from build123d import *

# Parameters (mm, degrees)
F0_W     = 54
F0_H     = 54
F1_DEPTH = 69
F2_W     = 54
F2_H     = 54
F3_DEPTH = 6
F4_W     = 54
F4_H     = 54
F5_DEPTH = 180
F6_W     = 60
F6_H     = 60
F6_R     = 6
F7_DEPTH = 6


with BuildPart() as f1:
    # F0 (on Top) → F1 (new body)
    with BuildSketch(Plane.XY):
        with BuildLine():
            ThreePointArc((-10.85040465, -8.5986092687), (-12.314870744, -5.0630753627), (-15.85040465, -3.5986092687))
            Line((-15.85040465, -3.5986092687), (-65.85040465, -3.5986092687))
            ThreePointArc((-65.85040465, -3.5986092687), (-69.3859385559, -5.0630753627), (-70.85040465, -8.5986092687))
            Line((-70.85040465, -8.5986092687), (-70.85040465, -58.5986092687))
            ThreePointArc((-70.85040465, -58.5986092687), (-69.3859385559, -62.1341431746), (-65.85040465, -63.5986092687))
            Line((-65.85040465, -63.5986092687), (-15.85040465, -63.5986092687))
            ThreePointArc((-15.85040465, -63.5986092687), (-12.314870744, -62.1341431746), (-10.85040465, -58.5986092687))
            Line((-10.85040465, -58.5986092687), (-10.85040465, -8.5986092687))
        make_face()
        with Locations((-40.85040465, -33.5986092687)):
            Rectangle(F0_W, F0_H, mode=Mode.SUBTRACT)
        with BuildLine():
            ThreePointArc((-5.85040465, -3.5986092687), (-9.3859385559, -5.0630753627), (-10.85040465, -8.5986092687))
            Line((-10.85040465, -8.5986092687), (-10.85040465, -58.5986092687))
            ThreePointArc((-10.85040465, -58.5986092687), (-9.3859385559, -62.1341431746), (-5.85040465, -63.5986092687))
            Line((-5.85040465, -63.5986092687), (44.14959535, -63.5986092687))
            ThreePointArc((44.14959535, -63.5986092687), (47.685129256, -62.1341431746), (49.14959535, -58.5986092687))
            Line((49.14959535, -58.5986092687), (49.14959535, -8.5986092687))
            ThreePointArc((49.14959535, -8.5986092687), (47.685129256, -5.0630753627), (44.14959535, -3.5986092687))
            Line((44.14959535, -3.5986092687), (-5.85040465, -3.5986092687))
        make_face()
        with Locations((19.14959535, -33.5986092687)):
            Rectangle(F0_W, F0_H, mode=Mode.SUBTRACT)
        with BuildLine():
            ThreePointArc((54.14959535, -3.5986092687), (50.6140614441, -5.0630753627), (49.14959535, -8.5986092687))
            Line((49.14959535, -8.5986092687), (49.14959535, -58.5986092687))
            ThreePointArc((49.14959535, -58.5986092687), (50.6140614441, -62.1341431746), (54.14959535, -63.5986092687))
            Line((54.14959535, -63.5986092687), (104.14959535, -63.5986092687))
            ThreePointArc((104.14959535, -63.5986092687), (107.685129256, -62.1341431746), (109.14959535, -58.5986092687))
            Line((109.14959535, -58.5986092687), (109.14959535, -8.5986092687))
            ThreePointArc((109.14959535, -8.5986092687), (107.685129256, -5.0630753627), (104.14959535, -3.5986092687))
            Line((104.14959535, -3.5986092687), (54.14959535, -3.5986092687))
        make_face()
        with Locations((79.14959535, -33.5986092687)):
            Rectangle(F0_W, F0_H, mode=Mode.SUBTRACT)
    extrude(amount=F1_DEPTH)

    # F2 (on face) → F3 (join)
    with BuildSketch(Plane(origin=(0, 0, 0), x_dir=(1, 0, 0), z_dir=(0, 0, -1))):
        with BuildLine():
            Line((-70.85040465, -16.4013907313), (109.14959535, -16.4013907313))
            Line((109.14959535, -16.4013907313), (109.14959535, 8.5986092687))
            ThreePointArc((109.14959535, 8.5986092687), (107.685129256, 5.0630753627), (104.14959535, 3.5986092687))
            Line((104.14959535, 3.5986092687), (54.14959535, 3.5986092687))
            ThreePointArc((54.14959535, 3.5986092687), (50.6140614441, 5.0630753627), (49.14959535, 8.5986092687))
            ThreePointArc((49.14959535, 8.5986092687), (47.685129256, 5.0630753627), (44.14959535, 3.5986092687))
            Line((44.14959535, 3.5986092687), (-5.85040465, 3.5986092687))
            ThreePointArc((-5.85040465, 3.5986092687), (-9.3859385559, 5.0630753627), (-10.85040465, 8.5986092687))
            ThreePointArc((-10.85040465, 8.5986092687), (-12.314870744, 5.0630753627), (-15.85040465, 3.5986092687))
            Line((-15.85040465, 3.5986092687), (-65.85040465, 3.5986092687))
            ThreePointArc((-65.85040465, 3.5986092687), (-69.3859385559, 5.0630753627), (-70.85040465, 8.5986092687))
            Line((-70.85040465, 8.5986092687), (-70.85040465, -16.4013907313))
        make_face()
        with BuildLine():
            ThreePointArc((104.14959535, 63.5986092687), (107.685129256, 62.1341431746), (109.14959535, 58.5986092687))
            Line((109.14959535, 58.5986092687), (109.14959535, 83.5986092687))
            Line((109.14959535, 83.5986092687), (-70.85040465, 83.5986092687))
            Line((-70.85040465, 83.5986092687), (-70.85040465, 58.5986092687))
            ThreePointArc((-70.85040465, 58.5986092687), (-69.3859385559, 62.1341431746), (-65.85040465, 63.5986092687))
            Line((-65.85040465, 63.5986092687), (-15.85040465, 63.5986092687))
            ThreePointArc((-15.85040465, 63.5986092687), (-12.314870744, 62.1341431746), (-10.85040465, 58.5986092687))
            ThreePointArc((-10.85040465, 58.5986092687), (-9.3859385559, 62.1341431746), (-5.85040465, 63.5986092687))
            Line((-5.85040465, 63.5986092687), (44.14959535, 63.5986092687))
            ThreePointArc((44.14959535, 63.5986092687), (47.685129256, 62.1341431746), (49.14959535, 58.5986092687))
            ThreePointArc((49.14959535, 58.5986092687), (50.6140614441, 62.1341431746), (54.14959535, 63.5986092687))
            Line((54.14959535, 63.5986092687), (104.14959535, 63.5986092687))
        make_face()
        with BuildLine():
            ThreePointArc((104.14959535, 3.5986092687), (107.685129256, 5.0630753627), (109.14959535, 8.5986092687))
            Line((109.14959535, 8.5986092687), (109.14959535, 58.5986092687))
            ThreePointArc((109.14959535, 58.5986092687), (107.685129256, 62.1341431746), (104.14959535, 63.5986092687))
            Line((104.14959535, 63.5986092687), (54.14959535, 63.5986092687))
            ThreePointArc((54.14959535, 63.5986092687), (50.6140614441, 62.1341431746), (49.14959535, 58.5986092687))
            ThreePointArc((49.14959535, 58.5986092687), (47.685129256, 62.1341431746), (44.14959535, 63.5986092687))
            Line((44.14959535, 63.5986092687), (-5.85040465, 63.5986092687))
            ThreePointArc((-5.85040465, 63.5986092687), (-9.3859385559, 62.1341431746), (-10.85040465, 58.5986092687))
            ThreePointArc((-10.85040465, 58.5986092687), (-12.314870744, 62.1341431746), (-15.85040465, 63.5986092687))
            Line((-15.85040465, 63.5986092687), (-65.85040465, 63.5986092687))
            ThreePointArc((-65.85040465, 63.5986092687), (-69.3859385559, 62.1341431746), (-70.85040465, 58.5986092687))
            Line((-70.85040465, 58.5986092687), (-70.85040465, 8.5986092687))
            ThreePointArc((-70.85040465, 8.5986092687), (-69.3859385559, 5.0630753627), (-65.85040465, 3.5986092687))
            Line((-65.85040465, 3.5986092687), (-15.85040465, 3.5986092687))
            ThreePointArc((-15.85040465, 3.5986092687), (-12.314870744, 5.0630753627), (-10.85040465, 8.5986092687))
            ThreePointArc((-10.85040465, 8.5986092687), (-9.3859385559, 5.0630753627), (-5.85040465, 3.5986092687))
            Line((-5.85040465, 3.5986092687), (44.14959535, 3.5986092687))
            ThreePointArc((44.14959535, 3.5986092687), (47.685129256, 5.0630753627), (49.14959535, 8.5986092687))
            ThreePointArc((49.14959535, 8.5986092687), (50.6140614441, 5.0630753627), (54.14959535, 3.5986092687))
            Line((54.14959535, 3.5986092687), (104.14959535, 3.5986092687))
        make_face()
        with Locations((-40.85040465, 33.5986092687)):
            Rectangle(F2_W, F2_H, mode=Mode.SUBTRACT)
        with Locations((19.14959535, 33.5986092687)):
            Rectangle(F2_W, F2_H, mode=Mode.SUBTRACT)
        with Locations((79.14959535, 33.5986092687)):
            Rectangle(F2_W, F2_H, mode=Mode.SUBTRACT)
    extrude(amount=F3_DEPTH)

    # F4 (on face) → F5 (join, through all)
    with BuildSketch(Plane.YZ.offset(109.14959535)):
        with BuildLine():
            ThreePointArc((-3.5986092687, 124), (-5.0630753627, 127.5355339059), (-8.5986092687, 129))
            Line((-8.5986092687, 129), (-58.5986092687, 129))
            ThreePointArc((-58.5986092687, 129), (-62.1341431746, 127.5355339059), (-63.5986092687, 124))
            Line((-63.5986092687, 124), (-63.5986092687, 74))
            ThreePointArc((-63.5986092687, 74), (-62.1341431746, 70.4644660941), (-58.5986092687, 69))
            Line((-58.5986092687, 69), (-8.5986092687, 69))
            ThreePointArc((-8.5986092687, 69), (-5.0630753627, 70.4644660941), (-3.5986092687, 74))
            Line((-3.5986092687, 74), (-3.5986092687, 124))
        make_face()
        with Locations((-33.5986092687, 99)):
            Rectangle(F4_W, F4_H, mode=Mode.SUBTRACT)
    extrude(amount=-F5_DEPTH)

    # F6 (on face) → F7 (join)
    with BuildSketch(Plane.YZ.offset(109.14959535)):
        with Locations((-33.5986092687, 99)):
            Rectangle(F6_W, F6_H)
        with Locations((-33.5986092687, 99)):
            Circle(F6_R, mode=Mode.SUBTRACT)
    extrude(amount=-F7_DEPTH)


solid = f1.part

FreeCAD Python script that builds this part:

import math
import FreeCAD as App
import Part
import Sketcher
from FreeCAD import Vector


def add_polygon(sketch, points):
    """Adds a closed chain of lines whose ends are joined by coincident constraints."""
    first, n = sketch.GeometryCount, len(points)
    for a, b in zip(points, points[1:] + points[:1]):
        sketch.addGeometry(Part.LineSegment(App.Vector(*a, 0), App.Vector(*b, 0)), False)
    for i in range(n):
        sketch.addConstraint(Sketcher.Constraint("Coincident", first + i, 2, first + (i + 1) % n, 1))

doc = App.newDocument("Part")
body = doc.addObject("PartDesign::Body", "Body")

# Sketch on XY plane
sketch1 = doc.addObject("Sketcher::SketchObject", "Sketch")
body.addObject(sketch1)
sketch1.AttachmentSupport = (doc.XY_Plane, [""])
sketch1.MapMode = "FlatFace"
sketch1.addGeometry(Part.ArcOfCircle(Part.Circle(Vector(-16, -9, 0), Vector(0, 0, 1), 5), math.radians(0), math.radians(90)), False)  # 0
sketch1.addGeometry(Part.LineSegment(Vector(-16, -4, 0), Vector(-66, -4, 0)), False)  # 1
sketch1.addGeometry(Part.ArcOfCircle(Part.Circle(Vector(-66, -9, 0), Vector(0, 0, 1), 5), math.radians(90), math.radians(180)), False)  # 2
sketch1.addGeometry(Part.LineSegment(Vector(-71, -9, 0), Vector(-71, -59, 0)), False)  # 3
sketch1.addGeometry(Part.ArcOfCircle(Part.Circle(Vector(-66, -59, 0), Vector(0, 0, 1), 5), math.radians(180), math.radians(270)), False)  # 4
sketch1.addGeometry(Part.LineSegment(Vector(-66, -64, 0), Vector(-16, -64, 0)), False)  # 5
sketch1.addGeometry(Part.ArcOfCircle(Part.Circle(Vector(-16, -59, 0), Vector(0, 0, 1), 5), math.radians(-90), math.radians(0)), False)  # 6
sketch1.addGeometry(Part.ArcOfCircle(Part.Circle(Vector(-6, -59, 0), Vector(0, 0, 1), 5), math.radians(180), math.radians(270)), False)  # 7
sketch1.addGeometry(Part.LineSegment(Vector(-6, -64, 0), Vector(44, -64, 0)), False)  # 8
sketch1.addGeometry(Part.ArcOfCircle(Part.Circle(Vector(44, -59, 0), Vector(0, 0, 1), 5), math.radians(-90), math.radians(0)), False)  # 9
sketch1.addGeometry(Part.ArcOfCircle(Part.Circle(Vector(54, -59, 0), Vector(0, 0, 1), 5), math.radians(180), math.radians(270)), False)  # 10
sketch1.addGeometry(Part.LineSegment(Vector(54, -64, 0), Vector(104, -64, 0)), False)  # 11
sketch1.addGeometry(Part.ArcOfCircle(Part.Circle(Vector(104, -59, 0), Vector(0, 0, 1), 5), math.radians(-90), math.radians(0)), False)  # 12
sketch1.addGeometry(Part.LineSegment(Vector(109, -59, 0), Vector(109, -9, 0)), False)  # 13
sketch1.addGeometry(Part.ArcOfCircle(Part.Circle(Vector(104, -9, 0), Vector(0, 0, 1), 5), math.radians(0), math.radians(90)), False)  # 14
sketch1.addGeometry(Part.LineSegment(Vector(104, -4, 0), Vector(54, -4, 0)), False)  # 15
sketch1.addGeometry(Part.ArcOfCircle(Part.Circle(Vector(54, -9, 0), Vector(0, 0, 1), 5), math.radians(90), math.radians(180)), False)  # 16
sketch1.addGeometry(Part.ArcOfCircle(Part.Circle(Vector(44, -9, 0), Vector(0, 0, 1), 5), math.radians(0), math.radians(90)), False)  # 17
sketch1.addGeometry(Part.LineSegment(Vector(44, -4, 0), Vector(-6, -4, 0)), False)  # 18
sketch1.addGeometry(Part.ArcOfCircle(Part.Circle(Vector(-6, -9, 0), Vector(0, 0, 1), 5), math.radians(90), math.radians(180)), False)  # 19
add_polygon(sketch1, [(-14, -61), (-68, -61), (-68, -7), (-14, -7)])  # lines 20-23
add_polygon(sketch1, [(46, -61), (-8, -61), (-8, -7), (46, -7)])  # lines 24-27
add_polygon(sketch1, [(106, -61), (52, -61), (52, -7), (106, -7)])  # lines 28-31
sketch1.addConstraint(Sketcher.Constraint("Tangent", 0, 2, 1, 1))
sketch1.addConstraint(Sketcher.Constraint("Tangent", 1, 2, 2, 1))
sketch1.addConstraint(Sketcher.Constraint("Tangent", 2, 2, 3, 1))
sketch1.addConstraint(Sketcher.Constraint("Tangent", 3, 2, 4, 1))
sketch1.addConstraint(Sketcher.Constraint("Tangent", 4, 2, 5, 1))
sketch1.addConstraint(Sketcher.Constraint("Tangent", 5, 2, 6, 1))
sketch1.addConstraint(Sketcher.Constraint("Tangent", 6, 2, 7, 1))
sketch1.addConstraint(Sketcher.Constraint("Tangent", 7, 2, 8, 1))
sketch1.addConstraint(Sketcher.Constraint("Tangent", 8, 2, 9, 1))
sketch1.addConstraint(Sketcher.Constraint("Tangent", 9, 2, 10, 1))
sketch1.addConstraint(Sketcher.Constraint("Tangent", 10, 2, 11, 1))
sketch1.addConstraint(Sketcher.Constraint("Tangent", 11, 2, 12, 1))
sketch1.addConstraint(Sketcher.Constraint("Tangent", 12, 2, 13, 1))
sketch1.addConstraint(Sketcher.Constraint("Tangent", 13, 2, 14, 1))
sketch1.addConstraint(Sketcher.Constraint("Tangent", 14, 2, 15, 1))
sketch1.addConstraint(Sketcher.Constraint("Tangent", 15, 2, 16, 1))
sketch1.addConstraint(Sketcher.Constraint("Tangent", 16, 2, 17, 1))
sketch1.addConstraint(Sketcher.Constraint("Tangent", 17, 2, 18, 1))
sketch1.addConstraint(Sketcher.Constraint("Tangent", 18, 2, 19, 1))
sketch1.addConstraint(Sketcher.Constraint("Tangent", 19, 2, 0, 1))
sketch1.addConstraint(Sketcher.Constraint("Horizontal", 1))
sketch1.addConstraint(Sketcher.Constraint("Vertical", 3))
sketch1.addConstraint(Sketcher.Constraint("Horizontal", 5))
sketch1.addConstraint(Sketcher.Constraint("Horizontal", 8))
sketch1.addConstraint(Sketcher.Constraint("Horizontal", 11))
sketch1.addConstraint(Sketcher.Constraint("Vertical", 13))
sketch1.addConstraint(Sketcher.Constraint("Horizontal", 15))
sketch1.addConstraint(Sketcher.Constraint("Horizontal", 18))
sketch1.addConstraint(Sketcher.Constraint("Horizontal", 20))
sketch1.addConstraint(Sketcher.Constraint("Vertical", 21))
sketch1.addConstraint(Sketcher.Constraint("Horizontal", 22))
sketch1.addConstraint(Sketcher.Constraint("Vertical", 23))
sketch1.addConstraint(Sketcher.Constraint("Horizontal", 24))
sketch1.addConstraint(Sketcher.Constraint("Vertical", 25))
sketch1.addConstraint(Sketcher.Constraint("Horizontal", 26))
sketch1.addConstraint(Sketcher.Constraint("Vertical", 27))
sketch1.addConstraint(Sketcher.Constraint("Horizontal", 28))
sketch1.addConstraint(Sketcher.Constraint("Vertical", 29))
sketch1.addConstraint(Sketcher.Constraint("Horizontal", 30))
sketch1.addConstraint(Sketcher.Constraint("Vertical", 31))
sketch1.addConstraint(Sketcher.Constraint("Equal", 0, 2))
sketch1.addConstraint(Sketcher.Constraint("Equal", 2, 4))
sketch1.addConstraint(Sketcher.Constraint("Equal", 4, 6))
sketch1.addConstraint(Sketcher.Constraint("Equal", 6, 7))
sketch1.addConstraint(Sketcher.Constraint("Equal", 7, 9))
sketch1.addConstraint(Sketcher.Constraint("Equal", 9, 10))
sketch1.addConstraint(Sketcher.Constraint("Equal", 10, 12))
sketch1.addConstraint(Sketcher.Constraint("Equal", 12, 14))
sketch1.addConstraint(Sketcher.Constraint("Equal", 14, 16))
sketch1.addConstraint(Sketcher.Constraint("Equal", 16, 17))
sketch1.addConstraint(Sketcher.Constraint("Equal", 17, 19))
sketch1.addConstraint(Sketcher.Constraint("Horizontal", 6, 3, 7, 3))
sketch1.addConstraint(Sketcher.Constraint("Horizontal", 9, 3, 10, 3))
sketch1.addConstraint(Sketcher.Constraint("Horizontal", 2, 3, 14, 3))
sketch1.addConstraint(Sketcher.Constraint("Horizontal", 16, 3, 17, 3))
sketch1.addConstraint(Sketcher.Constraint("Horizontal", 23, 2, 24, 2))
sketch1.addConstraint(Sketcher.Constraint("Horizontal", 22, 2, 25, 2))
sketch1.addConstraint(Sketcher.Constraint("Horizontal", 27, 2, 28, 2))
sketch1.addConstraint(Sketcher.Constraint("Horizontal", 26, 2, 29, 2))
sketch1.addConstraint(Sketcher.Constraint("Vertical", 0, 3, 6, 3))
sketch1.addConstraint(Sketcher.Constraint("Vertical", 10, 3, 16, 3))
sketch1.addConstraint(Sketcher.Constraint("Equal", 5, 8))
sketch1.addConstraint(Sketcher.Constraint("Equal", 8, 11))
sketch1.addConstraint(Sketcher.Constraint("Equal", 22, 24))
sketch1.addConstraint(Sketcher.Constraint("Equal", 26, 28))
sketch1.addConstraint(Sketcher.Constraint("Equal", 18, 3))
sketch1.addConstraint(Sketcher.Constraint("Equal", 30, 21))
sketch1.addConstraint(Sketcher.Constraint("Radius", 0, 5.0))
sketch1.addConstraint(Sketcher.Constraint("DistanceX", 1, 2, 1, 1, 50.0))
sketch1.addConstraint(Sketcher.Constraint("DistanceX", 20, 2, 20, 1, 54.0))
sketch1.addConstraint(Sketcher.Constraint("DistanceX", 20, 2, 4, 3, 2.0))
sketch1.addConstraint(Sketcher.Constraint("DistanceY", 20, 2, 4, 3, 2.0))
sketch1.addConstraint(Sketcher.Constraint("DistanceX", 24, 2, 7, 3, 2.0))
sketch1.addConstraint(Sketcher.Constraint("DistanceX", 28, 2, 10, 3, 2.0))
sketch1.addConstraint(Sketcher.Constraint("DistanceY", 0, 3, -1, 1, 8.598609))
sketch1.addConstraint(Sketcher.Constraint("DistanceX", 0, 3, -1, 1, 15.850405))
pad1 = doc.addObject("PartDesign::Pad", "Pad")
body.addObject(pad1)
pad1.Profile = sketch1
pad1.Length = 69

# Sketch on XY plane
sketch2 = doc.addObject("Sketcher::SketchObject", "Sketch001")
body.addObject(sketch2)
sketch2.AttachmentSupport = (doc.XY_Plane, [""])
sketch2.MapMode = "FlatFace"
add_polygon(sketch2, [(-71, 16), (109, 16), (109, -84), (-71, -84)])  # lines 0-3
add_polygon(sketch2, [(-14, -7), (-68, -7), (-68, -61), (-14, -61)])  # lines 4-7
add_polygon(sketch2, [(46, -7), (-8, -7), (-8, -61), (46, -61)])  # lines 8-11
add_polygon(sketch2, [(106, -7), (52, -7), (52, -61), (106, -61)])  # lines 12-15
sketch2.addConstraint(Sketcher.Constraint("Horizontal", 0))
sketch2.addConstraint(Sketcher.Constraint("Vertical", 1))
sketch2.addConstraint(Sketcher.Constraint("Horizontal", 2))
sketch2.addConstraint(Sketcher.Constraint("Vertical", 3))
sketch2.addConstraint(Sketcher.Constraint("Horizontal", 4))
sketch2.addConstraint(Sketcher.Constraint("Vertical", 5))
sketch2.addConstraint(Sketcher.Constraint("Horizontal", 6))
sketch2.addConstraint(Sketcher.Constraint("Vertical", 7))
sketch2.addConstraint(Sketcher.Constraint("Horizontal", 8))
sketch2.addConstraint(Sketcher.Constraint("Vertical", 9))
sketch2.addConstraint(Sketcher.Constraint("Horizontal", 10))
sketch2.addConstraint(Sketcher.Constraint("Vertical", 11))
sketch2.addConstraint(Sketcher.Constraint("Horizontal", 12))
sketch2.addConstraint(Sketcher.Constraint("Vertical", 13))
sketch2.addConstraint(Sketcher.Constraint("Horizontal", 14))
sketch2.addConstraint(Sketcher.Constraint("Vertical", 15))
sketch2.addConstraint(Sketcher.Constraint("Horizontal", 7, 2, 8, 2))
sketch2.addConstraint(Sketcher.Constraint("Horizontal", 6, 2, 9, 2))
sketch2.addConstraint(Sketcher.Constraint("Horizontal", 11, 2, 12, 2))
sketch2.addConstraint(Sketcher.Constraint("Horizontal", 10, 2, 13, 2))
sketch2.addConstraint(Sketcher.Constraint("Equal", 6, 8))
sketch2.addConstraint(Sketcher.Constraint("Equal", 10, 12))
sketch2.addConstraint(Sketcher.Constraint("Equal", 14, 5))
sketch2.addConstraint(Sketcher.Constraint("DistanceX", 0, 1, 0, 2, 180.0))
sketch2.addConstraint(Sketcher.Constraint("DistanceX", 4, 2, 4, 1, 54.0))
sketch2.addConstraint(Sketcher.Constraint("DistanceY", 1, 2, 1, 1, 100.0))
sketch2.addConstraint(Sketcher.Constraint("DistanceX", 3, 2, 4, 2, 3.0))
sketch2.addConstraint(Sketcher.Constraint("DistanceY", 4, 2, 3, 2, 23.0))
sketch2.addConstraint(Sketcher.Constraint("DistanceX", 7, 2, 8, 2, 6.0))
sketch2.addConstraint(Sketcher.Constraint("DistanceX", 11, 2, 12, 2, 6.0))
sketch2.addConstraint(Sketcher.Constraint("DistanceY", -1, 1, 0, 2, 16.401391))
sketch2.addConstraint(Sketcher.Constraint("DistanceX", -1, 1, 0, 2, 109.149595))
pad2 = doc.addObject("PartDesign::Pad", "Pad001")
body.addObject(pad2)
pad2.Profile = sketch2
pad2.Length = 6
pad2.Reversed = True

# Sketch on YZ plane
sketch3 = doc.addObject("Sketcher::SketchObject", "Sketch002")
body.addObject(sketch3)
sketch3.AttachmentSupport = (doc.YZ_Plane, [""])
sketch3.MapMode = "FlatFace"
sketch3.AttachmentOffset = App.Placement(Vector(0, 0, 109.149595), App.Rotation())
sketch3.addGeometry(Part.ArcOfCircle(Part.Circle(Vector(-9, 124, 0), Vector(0, 0, 1), 5), math.radians(0), math.radians(90)), False)  # 0
sketch3.addGeometry(Part.LineSegment(Vector(-9, 129, 0), Vector(-59, 129, 0)), False)  # 1
sketch3.addGeometry(Part.ArcOfCircle(Part.Circle(Vector(-59, 124, 0), Vector(0, 0, 1), 5), math.radians(90), math.radians(180)), False)  # 2
sketch3.addGeometry(Part.LineSegment(Vector(-64, 124, 0), Vector(-64, 74, 0)), False)  # 3
sketch3.addGeometry(Part.ArcOfCircle(Part.Circle(Vector(-59, 74, 0), Vector(0, 0, 1), 5), math.radians(180), math.radians(270)), False)  # 4
sketch3.addGeometry(Part.LineSegment(Vector(-59, 69, 0), Vector(-9, 69, 0)), False)  # 5
sketch3.addGeometry(Part.ArcOfCircle(Part.Circle(Vector(-9, 74, 0), Vector(0, 0, 1), 5), math.radians(-90), math.radians(0)), False)  # 6
sketch3.addGeometry(Part.LineSegment(Vector(-4, 74, 0), Vector(-4, 124, 0)), False)  # 7
add_polygon(sketch3, [(-7, 72), (-61, 72), (-61, 126), (-7, 126)])  # lines 8-11
sketch3.addConstraint(Sketcher.Constraint("Tangent", 0, 2, 1, 1))
sketch3.addConstraint(Sketcher.Constraint("Tangent", 1, 2, 2, 1))
sketch3.addConstraint(Sketcher.Constraint("Tangent", 2, 2, 3, 1))
sketch3.addConstraint(Sketcher.Constraint("Tangent", 3, 2, 4, 1))
sketch3.addConstraint(Sketcher.Constraint("Tangent", 4, 2, 5, 1))
sketch3.addConstraint(Sketcher.Constraint("Tangent", 5, 2, 6, 1))
sketch3.addConstraint(Sketcher.Constraint("Tangent", 6, 2, 7, 1))
sketch3.addConstraint(Sketcher.Constraint("Tangent", 7, 2, 0, 1))
sketch3.addConstraint(Sketcher.Constraint("Horizontal", 1))
sketch3.addConstraint(Sketcher.Constraint("Vertical", 3))
sketch3.addConstraint(Sketcher.Constraint("Horizontal", 5))
sketch3.addConstraint(Sketcher.Constraint("Vertical", 7))
sketch3.addConstraint(Sketcher.Constraint("Horizontal", 8))
sketch3.addConstraint(Sketcher.Constraint("Vertical", 9))
sketch3.addConstraint(Sketcher.Constraint("Horizontal", 10))
sketch3.addConstraint(Sketcher.Constraint("Vertical", 11))
sketch3.addConstraint(Sketcher.Constraint("Equal", 0, 2))
sketch3.addConstraint(Sketcher.Constraint("Equal", 2, 4))
sketch3.addConstraint(Sketcher.Constraint("Equal", 4, 6))
sketch3.addConstraint(Sketcher.Constraint("Equal", 5, 3))
sketch3.addConstraint(Sketcher.Constraint("Equal", 10, 9))
sketch3.addConstraint(Sketcher.Constraint("Radius", 0, 5.0))
sketch3.addConstraint(Sketcher.Constraint("DistanceX", 1, 2, 1, 1, 50.0))
sketch3.addConstraint(Sketcher.Constraint("DistanceX", 8, 2, 8, 1, 54.0))
sketch3.addConstraint(Sketcher.Constraint("DistanceY", -1, 1, 0, 3, 124.0))
sketch3.addConstraint(Sketcher.Constraint("DistanceY", -1, 1, 8, 2, 72.0))
sketch3.addConstraint(Sketcher.Constraint("DistanceX", 8, 2, 4, 3, 2.0))
sketch3.addConstraint(Sketcher.Constraint("DistanceX", 0, 3, -1, 1, 8.598609))
pad3 = doc.addObject("PartDesign::Pad", "Pad002")
body.addObject(pad3)
pad3.Profile = sketch3
pad3.Length = 180
pad3.Reversed = True

# Sketch on YZ plane
sketch4 = doc.addObject("Sketcher::SketchObject", "Sketch003")
body.addObject(sketch4)
sketch4.AttachmentSupport = (doc.YZ_Plane, [""])
sketch4.MapMode = "FlatFace"
sketch4.AttachmentOffset = App.Placement(Vector(0, 0, 109.149595), App.Rotation())
add_polygon(sketch4, [(-64, 129), (-64, 69), (-4, 69), (-4, 129)])  # lines 0-3
sketch4.addGeometry(Part.Circle(Vector(-34, 99, 0), Vector(0, 0, 1), 6), False)  # 4
sketch4.addConstraint(Sketcher.Constraint("Vertical", 0))
sketch4.addConstraint(Sketcher.Constraint("Horizontal", 1))
sketch4.addConstraint(Sketcher.Constraint("Vertical", 2))
sketch4.addConstraint(Sketcher.Constraint("Horizontal", 3))
sketch4.addConstraint(Sketcher.Constraint("Equal", 3, 0))
sketch4.addConstraint(Sketcher.Constraint("Diameter", 4, 12.0))
sketch4.addConstraint(Sketcher.Constraint("DistanceX", 1, 1, 1, 2, 60.0))
sketch4.addConstraint(Sketcher.Constraint("DistanceY", -1, 1, 4, 3, 99.0))
sketch4.addConstraint(Sketcher.Constraint("DistanceY", -1, 1, 0, 2, 69.0))
sketch4.addConstraint(Sketcher.Constraint("DistanceX", 0, 2, 4, 3, 30.0))
sketch4.addConstraint(Sketcher.Constraint("DistanceX", 4, 3, -1, 1, 33.598609))
pad4 = doc.addObject("PartDesign::Pad", "Pad003")
body.addObject(pad4)
pad4.Profile = sketch4
pad4.Length = 6
pad4.Reversed = True

doc.recompute()
